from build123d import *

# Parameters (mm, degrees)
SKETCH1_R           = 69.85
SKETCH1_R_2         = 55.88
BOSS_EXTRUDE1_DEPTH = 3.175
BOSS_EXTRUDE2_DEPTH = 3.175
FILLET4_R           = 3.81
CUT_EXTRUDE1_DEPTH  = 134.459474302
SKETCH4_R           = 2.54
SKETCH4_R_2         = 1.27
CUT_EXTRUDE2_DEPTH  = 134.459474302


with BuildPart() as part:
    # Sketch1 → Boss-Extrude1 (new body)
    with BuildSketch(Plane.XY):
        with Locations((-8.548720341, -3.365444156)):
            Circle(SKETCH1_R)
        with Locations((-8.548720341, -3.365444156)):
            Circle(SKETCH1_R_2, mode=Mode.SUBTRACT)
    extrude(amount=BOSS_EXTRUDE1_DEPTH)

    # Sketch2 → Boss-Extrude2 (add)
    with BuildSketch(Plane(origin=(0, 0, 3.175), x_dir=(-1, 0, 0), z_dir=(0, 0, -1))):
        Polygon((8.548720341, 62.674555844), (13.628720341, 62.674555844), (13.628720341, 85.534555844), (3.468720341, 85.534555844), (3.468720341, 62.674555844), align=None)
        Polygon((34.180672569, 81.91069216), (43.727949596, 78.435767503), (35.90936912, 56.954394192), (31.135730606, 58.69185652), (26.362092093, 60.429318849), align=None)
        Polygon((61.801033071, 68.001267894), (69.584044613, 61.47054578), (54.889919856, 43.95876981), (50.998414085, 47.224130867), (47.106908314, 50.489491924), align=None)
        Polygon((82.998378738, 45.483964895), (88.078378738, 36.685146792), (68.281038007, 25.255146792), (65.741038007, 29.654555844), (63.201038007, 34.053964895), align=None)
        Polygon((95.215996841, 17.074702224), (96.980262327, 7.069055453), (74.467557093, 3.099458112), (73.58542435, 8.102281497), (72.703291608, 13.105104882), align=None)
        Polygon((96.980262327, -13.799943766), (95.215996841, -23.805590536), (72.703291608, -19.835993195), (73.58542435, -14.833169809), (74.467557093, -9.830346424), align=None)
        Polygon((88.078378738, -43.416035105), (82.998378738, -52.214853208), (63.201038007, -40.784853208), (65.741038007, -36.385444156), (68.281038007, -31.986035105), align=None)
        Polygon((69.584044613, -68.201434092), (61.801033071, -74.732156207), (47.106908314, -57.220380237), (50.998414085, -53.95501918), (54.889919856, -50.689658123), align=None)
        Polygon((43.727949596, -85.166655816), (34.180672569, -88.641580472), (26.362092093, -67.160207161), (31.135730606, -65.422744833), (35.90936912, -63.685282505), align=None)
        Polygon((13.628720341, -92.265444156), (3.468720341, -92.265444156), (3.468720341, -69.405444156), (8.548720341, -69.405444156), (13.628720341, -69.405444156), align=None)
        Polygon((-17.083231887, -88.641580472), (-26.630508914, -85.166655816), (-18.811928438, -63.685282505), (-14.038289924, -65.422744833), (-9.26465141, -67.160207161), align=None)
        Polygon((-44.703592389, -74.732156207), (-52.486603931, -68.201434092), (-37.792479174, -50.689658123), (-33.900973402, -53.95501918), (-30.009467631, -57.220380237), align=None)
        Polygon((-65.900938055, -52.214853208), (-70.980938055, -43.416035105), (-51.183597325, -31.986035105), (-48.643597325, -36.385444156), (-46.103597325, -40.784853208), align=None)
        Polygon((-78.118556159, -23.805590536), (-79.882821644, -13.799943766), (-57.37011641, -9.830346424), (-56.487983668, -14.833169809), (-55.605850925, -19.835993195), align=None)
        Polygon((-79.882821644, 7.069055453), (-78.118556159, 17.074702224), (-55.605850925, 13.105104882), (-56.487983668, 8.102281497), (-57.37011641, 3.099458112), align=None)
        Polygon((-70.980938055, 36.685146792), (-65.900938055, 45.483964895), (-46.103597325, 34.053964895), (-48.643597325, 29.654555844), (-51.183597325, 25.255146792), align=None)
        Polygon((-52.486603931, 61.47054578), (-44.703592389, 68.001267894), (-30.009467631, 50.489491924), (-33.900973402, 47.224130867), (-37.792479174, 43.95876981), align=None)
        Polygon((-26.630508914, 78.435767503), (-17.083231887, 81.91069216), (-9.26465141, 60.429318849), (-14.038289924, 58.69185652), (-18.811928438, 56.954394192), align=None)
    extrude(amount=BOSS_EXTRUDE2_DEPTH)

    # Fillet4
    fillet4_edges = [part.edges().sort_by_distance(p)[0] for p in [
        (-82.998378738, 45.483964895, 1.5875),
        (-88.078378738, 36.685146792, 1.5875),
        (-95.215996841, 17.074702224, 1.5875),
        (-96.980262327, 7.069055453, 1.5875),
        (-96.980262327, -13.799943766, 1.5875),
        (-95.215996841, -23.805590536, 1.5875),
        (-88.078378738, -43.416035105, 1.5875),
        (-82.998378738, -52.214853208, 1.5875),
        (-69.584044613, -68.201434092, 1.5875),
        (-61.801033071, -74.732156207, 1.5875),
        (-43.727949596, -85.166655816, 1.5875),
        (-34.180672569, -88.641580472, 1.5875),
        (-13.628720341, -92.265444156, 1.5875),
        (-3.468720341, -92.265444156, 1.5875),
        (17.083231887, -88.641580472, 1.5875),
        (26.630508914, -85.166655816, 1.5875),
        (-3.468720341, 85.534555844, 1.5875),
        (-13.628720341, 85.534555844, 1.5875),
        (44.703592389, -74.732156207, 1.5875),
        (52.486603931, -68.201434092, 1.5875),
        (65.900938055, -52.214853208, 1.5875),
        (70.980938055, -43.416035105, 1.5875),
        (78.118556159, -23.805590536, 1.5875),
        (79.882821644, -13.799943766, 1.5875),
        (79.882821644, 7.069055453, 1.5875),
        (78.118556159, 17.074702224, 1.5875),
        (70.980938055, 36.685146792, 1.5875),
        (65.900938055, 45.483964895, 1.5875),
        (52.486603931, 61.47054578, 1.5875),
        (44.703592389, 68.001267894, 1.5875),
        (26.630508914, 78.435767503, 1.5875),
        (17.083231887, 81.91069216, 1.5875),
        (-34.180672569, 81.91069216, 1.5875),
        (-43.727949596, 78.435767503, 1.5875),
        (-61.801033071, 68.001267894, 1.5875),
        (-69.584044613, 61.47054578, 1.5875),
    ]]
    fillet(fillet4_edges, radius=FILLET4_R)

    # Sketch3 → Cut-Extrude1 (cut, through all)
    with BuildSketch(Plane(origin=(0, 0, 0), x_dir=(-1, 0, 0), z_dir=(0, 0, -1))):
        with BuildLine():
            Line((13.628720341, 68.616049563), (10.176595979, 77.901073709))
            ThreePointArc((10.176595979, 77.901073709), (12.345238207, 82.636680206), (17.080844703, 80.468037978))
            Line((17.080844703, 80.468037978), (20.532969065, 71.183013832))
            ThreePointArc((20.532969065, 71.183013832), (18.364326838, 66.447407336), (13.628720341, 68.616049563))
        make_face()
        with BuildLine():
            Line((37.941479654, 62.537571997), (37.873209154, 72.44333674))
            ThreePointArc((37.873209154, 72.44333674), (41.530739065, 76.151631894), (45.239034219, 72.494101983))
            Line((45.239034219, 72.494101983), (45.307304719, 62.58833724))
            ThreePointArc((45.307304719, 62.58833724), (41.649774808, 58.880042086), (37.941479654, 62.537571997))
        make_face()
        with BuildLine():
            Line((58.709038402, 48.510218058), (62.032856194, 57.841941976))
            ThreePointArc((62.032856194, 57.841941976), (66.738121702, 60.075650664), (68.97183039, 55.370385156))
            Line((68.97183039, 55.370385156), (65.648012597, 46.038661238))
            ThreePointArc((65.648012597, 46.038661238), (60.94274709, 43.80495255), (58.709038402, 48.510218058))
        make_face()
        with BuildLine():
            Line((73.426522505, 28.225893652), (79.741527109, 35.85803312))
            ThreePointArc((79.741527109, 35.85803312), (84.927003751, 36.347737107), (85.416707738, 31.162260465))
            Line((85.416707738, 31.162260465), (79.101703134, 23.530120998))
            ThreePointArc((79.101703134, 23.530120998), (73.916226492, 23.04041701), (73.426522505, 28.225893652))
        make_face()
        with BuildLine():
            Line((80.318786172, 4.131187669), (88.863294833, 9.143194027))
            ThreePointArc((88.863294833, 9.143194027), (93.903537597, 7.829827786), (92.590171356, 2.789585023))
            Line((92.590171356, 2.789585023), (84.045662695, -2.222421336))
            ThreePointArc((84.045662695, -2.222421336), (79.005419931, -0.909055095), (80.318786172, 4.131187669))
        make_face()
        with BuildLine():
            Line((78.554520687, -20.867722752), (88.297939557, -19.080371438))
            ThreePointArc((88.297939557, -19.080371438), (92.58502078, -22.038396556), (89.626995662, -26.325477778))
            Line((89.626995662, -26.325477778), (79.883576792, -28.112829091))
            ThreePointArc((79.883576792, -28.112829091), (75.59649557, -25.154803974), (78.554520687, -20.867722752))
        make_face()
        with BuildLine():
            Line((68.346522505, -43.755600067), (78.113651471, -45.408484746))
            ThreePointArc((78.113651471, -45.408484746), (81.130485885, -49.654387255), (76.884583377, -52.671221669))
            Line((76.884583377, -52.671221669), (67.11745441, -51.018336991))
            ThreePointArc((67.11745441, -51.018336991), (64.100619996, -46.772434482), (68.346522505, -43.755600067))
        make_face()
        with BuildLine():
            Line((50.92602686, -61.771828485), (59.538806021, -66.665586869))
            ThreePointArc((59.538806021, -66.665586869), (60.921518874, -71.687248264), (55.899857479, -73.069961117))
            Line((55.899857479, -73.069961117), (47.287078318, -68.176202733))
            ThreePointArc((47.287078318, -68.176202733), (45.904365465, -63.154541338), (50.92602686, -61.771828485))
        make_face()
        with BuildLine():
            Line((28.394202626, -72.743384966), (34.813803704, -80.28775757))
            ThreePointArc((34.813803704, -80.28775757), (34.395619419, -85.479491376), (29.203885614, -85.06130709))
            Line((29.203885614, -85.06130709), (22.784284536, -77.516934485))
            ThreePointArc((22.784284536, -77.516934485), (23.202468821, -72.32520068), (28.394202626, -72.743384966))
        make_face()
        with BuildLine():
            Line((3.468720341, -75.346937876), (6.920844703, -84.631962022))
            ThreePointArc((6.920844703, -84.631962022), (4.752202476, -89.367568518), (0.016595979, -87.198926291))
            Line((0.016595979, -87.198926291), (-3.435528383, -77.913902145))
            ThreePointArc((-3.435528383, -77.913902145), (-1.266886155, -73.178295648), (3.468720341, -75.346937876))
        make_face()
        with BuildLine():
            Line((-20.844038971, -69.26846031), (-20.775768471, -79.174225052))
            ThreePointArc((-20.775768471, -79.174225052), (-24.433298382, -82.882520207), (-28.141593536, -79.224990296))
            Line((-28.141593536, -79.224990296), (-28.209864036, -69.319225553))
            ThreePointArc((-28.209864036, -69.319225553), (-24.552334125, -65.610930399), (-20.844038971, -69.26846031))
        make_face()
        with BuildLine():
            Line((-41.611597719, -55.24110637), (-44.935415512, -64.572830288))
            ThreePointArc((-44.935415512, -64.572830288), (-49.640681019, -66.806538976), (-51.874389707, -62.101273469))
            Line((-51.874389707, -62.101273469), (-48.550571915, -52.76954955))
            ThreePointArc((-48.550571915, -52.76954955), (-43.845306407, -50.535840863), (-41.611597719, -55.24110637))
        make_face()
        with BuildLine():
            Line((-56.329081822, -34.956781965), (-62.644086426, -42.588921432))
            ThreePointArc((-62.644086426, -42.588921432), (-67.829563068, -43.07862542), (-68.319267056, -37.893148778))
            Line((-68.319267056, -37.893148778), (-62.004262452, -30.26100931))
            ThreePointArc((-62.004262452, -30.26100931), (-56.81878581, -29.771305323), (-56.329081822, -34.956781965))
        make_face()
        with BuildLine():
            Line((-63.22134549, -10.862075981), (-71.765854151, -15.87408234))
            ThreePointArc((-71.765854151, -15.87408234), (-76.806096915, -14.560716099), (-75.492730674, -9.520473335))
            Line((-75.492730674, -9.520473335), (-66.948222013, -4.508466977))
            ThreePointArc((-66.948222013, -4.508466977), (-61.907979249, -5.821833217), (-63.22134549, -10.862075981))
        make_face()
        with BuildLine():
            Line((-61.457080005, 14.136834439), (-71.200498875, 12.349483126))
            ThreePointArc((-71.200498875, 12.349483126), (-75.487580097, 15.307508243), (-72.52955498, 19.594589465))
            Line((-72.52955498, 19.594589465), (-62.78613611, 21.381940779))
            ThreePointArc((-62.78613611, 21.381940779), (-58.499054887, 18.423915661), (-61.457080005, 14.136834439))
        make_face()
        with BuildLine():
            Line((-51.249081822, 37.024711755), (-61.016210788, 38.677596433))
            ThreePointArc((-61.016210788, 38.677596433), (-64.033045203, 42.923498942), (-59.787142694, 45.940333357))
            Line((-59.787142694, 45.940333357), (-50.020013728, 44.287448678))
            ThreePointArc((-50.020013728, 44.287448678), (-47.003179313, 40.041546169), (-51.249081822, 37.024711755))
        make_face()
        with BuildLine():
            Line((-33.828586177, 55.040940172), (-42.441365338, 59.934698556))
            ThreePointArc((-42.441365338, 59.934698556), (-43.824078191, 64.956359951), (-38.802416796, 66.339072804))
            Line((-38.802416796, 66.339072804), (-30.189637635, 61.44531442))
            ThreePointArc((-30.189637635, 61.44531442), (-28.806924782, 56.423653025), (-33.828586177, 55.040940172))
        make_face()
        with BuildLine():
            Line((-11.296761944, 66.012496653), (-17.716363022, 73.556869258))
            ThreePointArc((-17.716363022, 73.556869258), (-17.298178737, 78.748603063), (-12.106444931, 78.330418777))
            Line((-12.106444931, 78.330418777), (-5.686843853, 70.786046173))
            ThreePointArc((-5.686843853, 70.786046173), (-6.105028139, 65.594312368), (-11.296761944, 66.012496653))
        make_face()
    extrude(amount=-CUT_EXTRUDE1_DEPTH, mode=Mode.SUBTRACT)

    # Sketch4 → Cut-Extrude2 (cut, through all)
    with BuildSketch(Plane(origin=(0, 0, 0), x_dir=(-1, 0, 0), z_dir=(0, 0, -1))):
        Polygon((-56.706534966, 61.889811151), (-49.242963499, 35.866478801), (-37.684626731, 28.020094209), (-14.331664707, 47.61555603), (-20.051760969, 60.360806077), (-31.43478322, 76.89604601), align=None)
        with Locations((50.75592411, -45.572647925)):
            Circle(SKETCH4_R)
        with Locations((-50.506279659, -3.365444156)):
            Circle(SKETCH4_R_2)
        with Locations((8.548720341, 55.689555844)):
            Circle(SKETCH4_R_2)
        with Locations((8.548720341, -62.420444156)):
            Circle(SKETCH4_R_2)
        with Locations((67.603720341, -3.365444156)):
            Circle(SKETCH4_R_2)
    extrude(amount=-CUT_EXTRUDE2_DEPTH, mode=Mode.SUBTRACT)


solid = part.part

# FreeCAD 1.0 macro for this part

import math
import FreeCAD as App
import Part
import Sketcher
Q = App.Units.Quantity


def edges_at(feature, points):
    """Names of the edges that pass closest to the given points."""
    edges = feature.Shape.Edges
    near = lambda p: min(range(len(edges)), key=lambda i: edges[i].distToShape(Part.Vertex(*p))[0])
    return sorted({f"Edge{near(p) + 1}" for p in points})


def add_polygon(sketch, points):
    """Adds a closed chain of lines whose ends are joined by coincident constraints."""
    first, n = sketch.GeometryCount, len(points)
    for a, b in zip(points, points[1:] + points[:1]):
        sketch.addGeometry(Part.LineSegment(App.Vector(*a, 0), App.Vector(*b, 0)), False)
    for i in range(n):
        sketch.addConstraint(Sketcher.Constraint("Coincident", first + i, 2, first + (i + 1) % n, 1))

doc = App.newDocument("Part")
body = doc.addObject("PartDesign::Body", "Body")

# Sketch on XY plane
sketch1 = body.newObject("Sketcher::SketchObject", "Sketch")
sketch1.AttachmentSupport = (doc.getObject("XY_Plane"), [""])
sketch1.MapMode = "FlatFace"
sketch1.addGeometry([
    Part.Circle(App.Vector(-9, -3, 0), App.Vector(0, 0, 1), 70),
    Part.Circle(App.Vector(-9, -3, 0), App.Vector(0, 0, 1), 56),
], False)
sketch1.addConstraint([
    Sketcher.Constraint("Coincident", 1, 3, 0, 3),
    Sketcher.Constraint("Diameter", 0, Q("5.5 in")),
    Sketcher.Constraint("Diameter", 1, Q("4.4 in")),
    Sketcher.Constraint("DistanceX", 0, 3, -1, 1, 8.54872),
    Sketcher.Constraint("DistanceY", 0, 3, -1, 1, 3.365444),
])
pad1 = body.newObject("PartDesign::Pad", "Pad")
pad1.Profile = sketch1
pad1.Length = Q("0.125 in")

# Sketch on XY plane
sketch2 = body.newObject("Sketcher::SketchObject", "Sketch001")
sketch2.AttachmentSupport = (doc.getObject("XY_Plane"), [""])
sketch2.MapMode = "FlatFace"
sketch2.AttachmentOffset = App.Placement(App.Vector(0, 0, 0.125 * 25.4), App.Rotation())
add_polygon(sketch2, [(-14, 63), (-14, 86), (-3, 86), (-3, 63)])  # lines 0-3
add_polygon(sketch2, [(-44, 78), (-34, 82), (-26, 60), (-31, 59), (-36, 57)])  # lines 4-8
add_polygon(sketch2, [(-70, 61), (-62, 68), (-47, 50), (-55, 44)])  # lines 9-12
add_polygon(sketch2, [(-88, 37), (-83, 45), (-63, 34), (-66, 30), (-68, 25)])  # lines 13-17
add_polygon(sketch2, [(-97, 7), (-95, 17), (-73, 13), (-74, 8), (-74, 3)])  # lines 18-22
add_polygon(sketch2, [(-95, -24), (-97, -14), (-74, -10), (-74, -15), (-73, -20)])  # lines 23-27
add_polygon(sketch2, [(-83, -52), (-88, -43), (-68, -32), (-66, -36), (-63, -41)])  # lines 28-32
add_polygon(sketch2, [(-62, -75), (-70, -68), (-55, -51), (-47, -57)])  # lines 33-36
add_polygon(sketch2, [(-34, -89), (-44, -85), (-36, -64), (-31, -65), (-26, -67)])  # lines 37-41
add_polygon(sketch2, [(-3, -92), (-14, -92), (-14, -69), (-3, -69)])  # lines 42-45
add_polygon(sketch2, [(27, -85), (17, -89), (9, -67), (19, -64)])  # lines 46-49
add_polygon(sketch2, [(52, -68), (45, -75), (30, -57), (34, -54), (38, -51)])  # lines 50-54
add_polygon(sketch2, [(71, -43), (66, -52), (46, -41), (49, -36), (51, -32)])  # lines 55-59
add_polygon(sketch2, [(80, -14), (78, -24), (56, -20), (56, -15), (57, -10)])  # lines 60-64
add_polygon(sketch2, [(78, 17), (80, 7), (57, 3), (56, 8), (56, 13)])  # lines 65-69
add_polygon(sketch2, [(66, 45), (71, 37), (51, 25), (49, 30), (46, 34)])  # lines 70-74
add_polygon(sketch2, [(45, 68), (52, 61), (38, 44), (34, 47), (30, 50)])  # lines 75-79
add_polygon(sketch2, [(17, 82), (27, 78), (19, 57), (14, 59), (9, 60)])  # lines 80-84
sketch2.addConstraint([
    Sketcher.Constraint("Vertical", 0),
    Sketcher.Constraint("Horizontal", 1),
    Sketcher.Constraint("Vertical", 2),
    Sketcher.Constraint("Horizontal", 3),
    Sketcher.Constraint("Horizontal", 42),
    Sketcher.Constraint("Vertical", 43),
    Sketcher.Constraint("Horizontal", 44),
    Sketcher.Constraint("Vertical", 45),
    Sketcher.Constraint("Perpendicular", 4, 5),
    Sketcher.Constraint("Perpendicular", 5, 6),
    Sketcher.Constraint("Parallel", 6, 7),
    Sketcher.Constraint("Perpendicular", 7, 8),
    Sketcher.Constraint("Perpendicular", 9, 10),
    Sketcher.Constraint("Perpendicular", 10, 11),
    Sketcher.Constraint("Perpendicular", 11, 12),
    Sketcher.Constraint("Perpendicular", 13, 14),
    Sketcher.Constraint("Perpendicular", 14, 15),
    Sketcher.Constraint("Parallel", 15, 16),
    Sketcher.Constraint("Perpendicular", 16, 17),
    Sketcher.Constraint("Perpendicular", 18, 19),
    Sketcher.Constraint("Perpendicular", 19, 20),
    Sketcher.Constraint("Parallel", 20, 21),
    Sketcher.Constraint("Perpendicular", 21, 22),
    Sketcher.Constraint("Perpendicular", 23, 24),
    Sketcher.Constraint("Perpendicular", 24, 25),
    Sketcher.Constraint("Parallel", 25, 26),
    Sketcher.Constraint("Perpendicular", 26, 27),
    Sketcher.Constraint("Perpendicular", 28, 29),
    Sketcher.Constraint("Perpendicular", 29, 30),
    Sketcher.Constraint("Parallel", 30, 31),
    Sketcher.Constraint("Perpendicular", 31, 32),
    Sketcher.Constraint("Perpendicular", 33, 34),
    Sketcher.Constraint("Perpendicular", 34, 35),
    Sketcher.Constraint("Perpendicular", 35, 36),
    Sketcher.Constraint("Perpendicular", 37, 38),
    Sketcher.Constraint("Perpendicular", 38, 39),
    Sketcher.Constraint("Parallel", 39, 40),
    Sketcher.Constraint("Perpendicular", 40, 41),
    Sketcher.Constraint("Perpendicular", 8, 46),
    Sketcher.Constraint("Perpendicular", 46, 47),
    Sketcher.Constraint("Perpendicular", 47, 48),
    Sketcher.Constraint("Perpendicular", 48, 49),
    Sketcher.Constraint("Perpendicular", 12, 50),
    Sketcher.Constraint("Perpendicular", 50, 51),
    Sketcher.Constraint("Perpendicular", 51, 52),
    Sketcher.Constraint("Parallel", 52, 53),
    Sketcher.Constraint("Perpendicular", 53, 54),
    Sketcher.Constraint("Perpendicular", 17, 55),
    Sketcher.Constraint("Perpendicular", 55, 56),
    Sketcher.Constraint("Perpendicular", 56, 57),
    Sketcher.Constraint("Parallel", 57, 58),
    Sketcher.Constraint("Perpendicular", 58, 59),
    Sketcher.Constraint("Perpendicular", 22, 60),
    Sketcher.Constraint("Perpendicular", 60, 61),
    Sketcher.Constraint("Perpendicular", 61, 62),
    Sketcher.Constraint("Parallel", 62, 63),
    Sketcher.Constraint("Perpendicular", 63, 64),
    Sketcher.Constraint("Perpendicular", 27, 65),
    Sketcher.Constraint("Perpendicular", 65, 66),
    Sketcher.Constraint("Perpendicular", 66, 67),
    Sketcher.Constraint("Parallel", 67, 68),
    Sketcher.Constraint("Perpendicular", 68, 69),
    Sketcher.Constraint("Perpendicular", 32, 70),
    Sketcher.Constraint("Perpendicular", 70, 71),
    Sketcher.Constraint("Perpendicular", 71, 72),
    Sketcher.Constraint("Parallel", 72, 73),
    Sketcher.Constraint("Perpendicular", 73, 74),
    Sketcher.Constraint("Perpendicular", 36, 75),
    Sketcher.Constraint("Perpendicular", 75, 76),
    Sketcher.Constraint("Perpendicular", 76, 77),
    Sketcher.Constraint("Parallel", 77, 78),
    Sketcher.Constraint("Perpendicular", 78, 79),
    Sketcher.Constraint("Perpendicular", 41, 80),
    Sketcher.Constraint("Perpendicular", 80, 81),
    Sketcher.Constraint("Perpendicular", 81, 82),
    Sketcher.Constraint("Parallel", 82, 83),
    Sketcher.Constraint("Perpendicular", 83, 84),
    Sketcher.Constraint("Horizontal", 41, 2, 46, 2),
    Sketcher.Constraint("Horizontal", 40, 2, 47, 2),
    Sketcher.Constraint("Horizontal", 38, 2, 48, 2),
    Sketcher.Constraint("Horizontal", 36, 2, 50, 2),
    Sketcher.Constraint("Horizontal", 35, 2, 51, 2),
    Sketcher.Constraint("Horizontal", 34, 2, 53, 2),
    Sketcher.Constraint("Horizontal", 32, 2, 55, 2),
    Sketcher.Constraint("Horizontal", 31, 2, 56, 2),
    Sketcher.Constraint("Horizontal", 30, 2, 57, 2),
    Sketcher.Constraint("Horizontal", 29, 2, 58, 2),
    Sketcher.Constraint("Horizontal", 27, 2, 60, 2),
    Sketcher.Constraint("Horizontal", 26, 2, 61, 2),
    Sketcher.Constraint("Horizontal", 25, 2, 62, 2),
    Sketcher.Constraint("Horizontal", 24, 2, 63, 2),
    Sketcher.Constraint("Horizontal", 22, 2, 65, 2),
    Sketcher.Constraint("Horizontal", 21, 2, 66, 2),
    Sketcher.Constraint("Horizontal", 20, 2, 67, 2),
    Sketcher.Constraint("Horizontal", 19, 2, 68, 2),
    Sketcher.Constraint("Horizontal", 17, 2, 70, 2),
    Sketcher.Constraint("Horizontal", 16, 2, 71, 2),
    Sketcher.Constraint("Horizontal", 15, 2, 72, 2),
    Sketcher.Constraint("Horizontal", 14, 2, 73, 2),
    Sketcher.Constraint("Horizontal", 12, 2, 75, 2),
    Sketcher.Constraint("Horizontal", 11, 2, 76, 2),
    Sketcher.Constraint("Horizontal", 10, 2, 78, 2),
    Sketcher.Constraint("Horizontal", 8, 2, 80, 2),
    Sketcher.Constraint("Horizontal", 7, 2, 81, 2),
    Sketcher.Constraint("Horizontal", 6, 2, 82, 2),
    Sketcher.Constraint("Horizontal", 5, 2, 83, 2),
    Sketcher.Constraint("Vertical", 22, 2, 23, 2),
    Sketcher.Constraint("Vertical", 21, 2, 24, 2),
    Sketcher.Constraint("Vertical", 20, 2, 25, 2),
    Sketcher.Constraint("Vertical", 19, 2, 26, 2),
    Sketcher.Constraint("Vertical", 17, 2, 28, 2),
    Sketcher.Constraint("Vertical", 16, 2, 29, 2),
    Sketcher.Constraint("Vertical", 15, 2, 30, 2),
    Sketcher.Constraint("Vertical", 14, 2, 31, 2),
    Sketcher.Constraint("Vertical", 12, 2, 33, 2),
    Sketcher.Constraint("Vertical", 11, 2, 34, 2),
    Sketcher.Constraint("Vertical", 10, 2, 35, 2),
    Sketcher.Constraint("Vertical", 8, 2, 37, 2),
    Sketcher.Constraint("Vertical", 7, 2, 38, 2),
    Sketcher.Constraint("Vertical", 6, 2, 39, 2),
    Sketcher.Constraint("Vertical", 5, 2, 40, 2),
    Sketcher.Constraint("Vertical", 3, 2, 42, 2),
    Sketcher.Constraint("Vertical", 2, 2, 44, 2),
    Sketcher.Constraint("Vertical", 64, 2, 65, 2),
    Sketcher.Constraint("Vertical", 63, 2, 66, 2),
    Sketcher.Constraint("Vertical", 59, 2, 70, 2),
    Sketcher.Constraint("Vertical", 58, 2, 71, 2),
    Sketcher.Constraint("Vertical", 54, 2, 75, 2),
    Sketcher.Constraint("Vertical", 53, 2, 76, 2),
    Sketcher.Constraint("Vertical", 52, 2, 77, 2),
    Sketcher.Constraint("Vertical", 49, 2, 80, 2),
    Sketcher.Constraint("Vertical", 48, 2, 81, 2),
    Sketcher.Constraint("Equal", 2, 43),
    Sketcher.Constraint("Equal", 6, 7),
    Sketcher.Constraint("Equal", 4, 9),
    Sketcher.Constraint("Equal", 8, 10),
    Sketcher.Constraint("Equal", 11, 13),
    Sketcher.Constraint("Equal", 12, 14),
    Sketcher.Constraint("Equal", 7, 15),
    Sketcher.Constraint("Equal", 13, 18),
    Sketcher.Constraint("Equal", 17, 19),
    Sketcher.Constraint("Equal", 16, 20),
    Sketcher.Constraint("Equal", 40, 52),
    Sketcher.Constraint("DistanceX", 1, 1, 1, 2, Q("0.4 in")),
    Sketcher.Constraint("DistanceY", 0, 1, 0, 2, Q("0.9 in")),
    Sketcher.Constraint("Angle", 4, Q("20 deg")),
    Sketcher.Constraint("Angle", 9, Q("40 deg")),
    Sketcher.Constraint("Angle", 13, Q("60 deg")),
    Sketcher.Constraint("Angle", 18, Q("80 deg")),
    Sketcher.Constraint("Distance", 4, Q("0.4 in")),
    Sketcher.Constraint("Distance", 5, Q("0.9 in")),
    Sketcher.Constraint("DistanceX", 0, 2, -1, 1, 13.62872),
    Sketcher.Constraint("DistanceY", -1, 1, 5, 2, 60.429319),
    Sketcher.Constraint("DistanceX", 6, 2, -1, 1, 31.135731),
    Sketcher.Constraint("DistanceX", 10, 2, -1, 1, 47.106908),
    Sketcher.Constraint("DistanceY", -1, 1, 10, 2, 50.489492),
    Sketcher.Constraint("DistanceX", 13, 2, -1, 1, 82.998379),
    Sketcher.Constraint("DistanceX", 19, 2, -1, 1, 72.703292),
    Sketcher.Constraint("DistanceY", -1, 1, 20, 2, 8.102281),
    Sketcher.Constraint("DistanceY", 25, 2, -1, 1, 14.83317),
    Sketcher.Constraint("DistanceY", 34, 2, -1, 1, 50.689658),
    Sketcher.Constraint("DistanceY", 41, 2, -1, 1, 88.64158),
    Sketcher.Constraint("DistanceX", -1, 1, 46, 2, 17.083232),
    Sketcher.Constraint("DistanceX", -1, 1, 53, 2, 37.792479),
    Sketcher.Constraint("DistanceX", -1, 1, 55, 2, 65.900938),
    Sketcher.Constraint("DistanceX", -1, 1, 61, 2, 55.605851),
    Sketcher.Constraint("DistanceY", -1, 1, 0, 2, 85.534556),
    Sketcher.Constraint("DistanceY", -1, 1, 13, 2, 45.483965),
    Sketcher.Constraint("DistanceY", 28, 2, -1, 1, 43.416035),
    Sketcher.Constraint("DistanceY", 42, 2, -1, 1, 92.265444),
])
pad2 = body.newObject("PartDesign::Pad", "Pad001")
pad2.Profile = sketch2
pad2.Length = Q("0.125 in")
pad2.Reversed = True
doc.recompute()

fillet = body.newObject("PartDesign::Fillet", "Fillet")
fillet.Base = (pad2, edges_at(pad2, [
    (-82.998, 45.484, 1.587),
    (-88.078, 36.685, 1.587),
    (-95.216, 17.075, 1.587),
    (-96.98, 7.069, 1.587),
    (-96.98, -13.8, 1.587),
    (-95.216, -23.806, 1.587),
    (-88.078, -43.416, 1.587),
    (-82.998, -52.215, 1.587),
    (-69.584, -68.201, 1.587),
    (-61.801, -74.732, 1.587),
    (-43.728, -85.167, 1.587),
    (-34.181, -88.642, 1.587),
    (-13.629, -92.265, 1.587),
    (-3.469, -92.265, 1.587),
    (17.083, -88.642, 1.587),
    (26.631, -85.167, 1.587),
    (-3.469, 85.535, 1.587),
    (-13.629, 85.535, 1.587),
    (44.704, -74.732, 1.587),
    (52.487, -68.201, 1.587),
    (65.901, -52.215, 1.587),
    (70.981, -43.416, 1.587),
    (78.119, -23.806, 1.587),
    (79.883, -13.8, 1.587),
    (79.883, 7.069, 1.587),
    (78.119, 17.075, 1.587),
    (70.981, 36.685, 1.587),
    (65.901, 45.484, 1.587),
    (52.487, 61.471, 1.587),
    (44.704, 68.001, 1.587),
    (26.631, 78.436, 1.587),
    (17.083, 81.911, 1.587),
    (-34.181, 81.911, 1.587),
    (-43.728, 78.436, 1.587),
    (-61.801, 68.001, 1.587),
    (-69.584, 61.471, 1.587),
]))
fillet.Radius = Q("0.15 in")

# Sketch on XY plane
sketch3 = body.newObject("Sketcher::SketchObject", "Sketch002")
sketch3.AttachmentSupport = (doc.getObject("XY_Plane"), [""])
sketch3.MapMode = "FlatFace"
sketch3.addGeometry([
    Part.LineSegment(App.Vector(-10.2, 77.9, 0), App.Vector(-13.6, 68.6, 0)),  # 0
    Part.ArcOfCircle(Part.Circle(App.Vector(-17.1, 69.9, 0), App.Vector(0, 0, 1), 3.7), math.radians(160), math.radians(340)),  # 1
    Part.LineSegment(App.Vector(-20.5, 71.2, 0), App.Vector(-17.1, 80.5, 0)),  # 2
    Part.ArcOfCircle(Part.Circle(App.Vector(-13.6, 79.2, 0), App.Vector(0, 0, 1), 3.7), math.radians(-20), math.radians(160)),  # 3
    Part.LineSegment(App.Vector(-37.9, 72.4, 0), App.Vector(-37.9, 62.5, 0)),  # 4
    Part.ArcOfCircle(Part.Circle(App.Vector(-41.6, 62.6, 0), App.Vector(0, 0, 1), 3.7), math.radians(180), math.radians(360)),  # 5
    Part.LineSegment(App.Vector(-45.3, 62.6, 0), App.Vector(-45.2, 72.5, 0)),  # 6
    Part.ArcOfCircle(Part.Circle(App.Vector(-41.6, 72.5, 0), App.Vector(0, 0, 1), 3.7), math.radians(0), math.radians(180)),  # 7
    Part.LineSegment(App.Vector(-62, 57.8, 0), App.Vector(-58.7, 48.5, 0)),  # 8
    Part.ArcOfCircle(Part.Circle(App.Vector(-62.2, 47.3, 0), App.Vector(0, 0, 1), 3.7), math.radians(-160), math.radians(20)),  # 9
    Part.LineSegment(App.Vector(-65.6, 46, 0), App.Vector(-69, 55.4, 0)),  # 10
    Part.ArcOfCircle(Part.Circle(App.Vector(-65.5, 56.6, 0), App.Vector(0, 0, 1), 3.7), math.radians(20), math.radians(200)),  # 11
    Part.LineSegment(App.Vector(-79.7, 35.9, 0), App.Vector(-73.4, 28.2, 0)),  # 12
    Part.ArcOfCircle(Part.Circle(App.Vector(-76.3, 25.9, 0), App.Vector(0, 0, 1), 3.7), math.radians(-140), math.radians(40)),  # 13
    Part.LineSegment(App.Vector(-79.1, 23.5, 0), App.Vector(-85.4, 31.2, 0)),  # 14
    Part.ArcOfCircle(Part.Circle(App.Vector(-82.6, 33.5, 0), App.Vector(0, 0, 1), 3.7), math.radians(40), math.radians(220)),  # 15
    Part.LineSegment(App.Vector(-88.9, 9.1, 0), App.Vector(-80.3, 4.1, 0)),  # 16
    Part.ArcOfCircle(Part.Circle(App.Vector(-82.2, 1, 0), App.Vector(0, 0, 1), 3.7), math.radians(-120), math.radians(60)),  # 17
    Part.LineSegment(App.Vector(-84, -2.2, 0), App.Vector(-92.6, 2.8, 0)),  # 18
    Part.ArcOfCircle(Part.Circle(App.Vector(-90.7, 6, 0), App.Vector(0, 0, 1), 3.7), math.radians(60), math.radians(240)),  # 19
    Part.LineSegment(App.Vector(-88.3, -19.1, 0), App.Vector(-78.6, -20.9, 0)),  # 20
    Part.ArcOfCircle(Part.Circle(App.Vector(-79.2, -24.5, 0), App.Vector(0, 0, 1), 3.7), math.radians(-100), math.radians(80)),  # 21
    Part.LineSegment(App.Vector(-79.9, -28.1, 0), App.Vector(-89.6, -26.3, 0)),  # 22
    Part.ArcOfCircle(Part.Circle(App.Vector(-89, -22.7, 0), App.Vector(0, 0, 1), 3.7), math.radians(80), math.radians(260)),  # 23
    Part.LineSegment(App.Vector(-78.1, -45.4, 0), App.Vector(-68.3, -43.8, 0)),  # 24
    Part.ArcOfCircle(Part.Circle(App.Vector(-67.7, -47.4, 0), App.Vector(0, 0, 1), 3.7), math.radians(-80), math.radians(100)),  # 25
    Part.LineSegment(App.Vector(-67.1, -51, 0), App.Vector(-76.9, -52.7, 0)),  # 26
    Part.ArcOfCircle(Part.Circle(App.Vector(-77.5, -49, 0), App.Vector(0, 0, 1), 3.7), math.radians(100), math.radians(280)),  # 27
    Part.LineSegment(App.Vector(-59.5, -66.7, 0), App.Vector(-50.9, -61.8, 0)),  # 28
    Part.ArcOfCircle(Part.Circle(App.Vector(-49.1, -65, 0), App.Vector(0, 0, 1), 3.7), math.radians(-60), math.radians(120)),  # 29
    Part.LineSegment(App.Vector(-47.3, -68.2, 0), App.Vector(-55.9, -73.1, 0)),  # 30
    Part.ArcOfCircle(Part.Circle(App.Vector(-57.7, -69.9, 0), App.Vector(0, 0, 1), 3.7), math.radians(120), math.radians(300)),  # 31
    Part.LineSegment(App.Vector(-34.8, -80.3, 0), App.Vector(-28.4, -72.7, 0)),  # 32
    Part.ArcOfCircle(Part.Circle(App.Vector(-25.6, -75.1, 0), App.Vector(0, 0, 1), 3.7), math.radians(-40), math.radians(140)),  # 33
    Part.LineSegment(App.Vector(-22.8, -77.5, 0), App.Vector(-29.2, -85.1, 0)),  # 34
    Part.ArcOfCircle(Part.Circle(App.Vector(-32, -82.7, 0), App.Vector(0, 0, 1), 3.7), math.radians(140), math.radians(320)),  # 35
    Part.LineSegment(App.Vector(-6.9, -84.6, 0), App.Vector(-3.5, -75.3, 0)),  # 36
    Part.ArcOfCircle(Part.Circle(App.Vector(0, -76.6, 0), App.Vector(0, 0, 1), 3.7), math.radians(-20), math.radians(160)),  # 37
    Part.LineSegment(App.Vector(3.4, -77.9, 0), App.Vector(0, -87.2, 0)),  # 38
    Part.ArcOfCircle(Part.Circle(App.Vector(-3.5, -85.9, 0), App.Vector(0, 0, 1), 3.7), math.radians(160), math.radians(340)),  # 39
    Part.LineSegment(App.Vector(20.8, -79.2, 0), App.Vector(20.8, -69.3, 0)),  # 40
    Part.ArcOfCircle(Part.Circle(App.Vector(24.5, -69.3, 0), App.Vector(0, 0, 1), 3.7), math.radians(0), math.radians(180)),  # 41
    Part.LineSegment(App.Vector(28.2, -69.3, 0), App.Vector(28.1, -79.2, 0)),  # 42
    Part.ArcOfCircle(Part.Circle(App.Vector(24.5, -79.2, 0), App.Vector(0, 0, 1), 3.7), math.radians(180), math.radians(360)),  # 43
    Part.LineSegment(App.Vector(44.9, -64.6, 0), App.Vector(41.6, -55.2, 0)),  # 44
    Part.ArcOfCircle(Part.Circle(App.Vector(45.1, -54, 0), App.Vector(0, 0, 1), 3.7), math.radians(20), math.radians(200)),  # 45
    Part.LineSegment(App.Vector(48.6, -52.8, 0), App.Vector(51.9, -62.1, 0)),  # 46
    Part.ArcOfCircle(Part.Circle(App.Vector(48.4, -63.3, 0), App.Vector(0, 0, 1), 3.7), math.radians(-160), math.radians(20)),  # 47
    Part.LineSegment(App.Vector(62.6, -42.6, 0), App.Vector(56.3, -35, 0)),  # 48
    Part.ArcOfCircle(Part.Circle(App.Vector(59.2, -32.6, 0), App.Vector(0, 0, 1), 3.7), math.radians(40), math.radians(220)),  # 49
    Part.LineSegment(App.Vector(62, -30.3, 0), App.Vector(68.3, -37.9, 0)),  # 50
    Part.ArcOfCircle(Part.Circle(App.Vector(65.5, -40.2, 0), App.Vector(0, 0, 1), 3.7), math.radians(-140), math.radians(40)),  # 51
    Part.LineSegment(App.Vector(71.8, -15.9, 0), App.Vector(63.2, -10.9, 0)),  # 52
    Part.ArcOfCircle(Part.Circle(App.Vector(65.1, -7.7, 0), App.Vector(0, 0, 1), 3.7), math.radians(60), math.radians(240)),  # 53
    Part.LineSegment(App.Vector(66.9, -4.5, 0), App.Vector(75.5, -9.5, 0)),  # 54
    Part.ArcOfCircle(Part.Circle(App.Vector(73.6, -12.7, 0), App.Vector(0, 0, 1), 3.7), math.radians(-120), math.radians(60)),  # 55
    Part.LineSegment(App.Vector(71.2, 12.3, 0), App.Vector(61.5, 14.1, 0)),  # 56
    Part.ArcOfCircle(Part.Circle(App.Vector(62.1, 17.8, 0), App.Vector(0, 0, 1), 3.7), math.radians(80), math.radians(260)),  # 57
    Part.LineSegment(App.Vector(62.8, 21.4, 0), App.Vector(72.5, 19.6, 0)),  # 58
    Part.ArcOfCircle(Part.Circle(App.Vector(71.9, 16, 0), App.Vector(0, 0, 1), 3.7), math.radians(-100), math.radians(80)),  # 59
    Part.LineSegment(App.Vector(61, 38.7, 0), App.Vector(51.2, 37, 0)),  # 60
    Part.ArcOfCircle(Part.Circle(App.Vector(50.6, 40.7, 0), App.Vector(0, 0, 1), 3.7), math.radians(100), math.radians(280)),  # 61
    Part.LineSegment(App.Vector(50, 44.3, 0), App.Vector(59.8, 45.9, 0)),  # 62
    Part.ArcOfCircle(Part.Circle(App.Vector(60.4, 42.3, 0), App.Vector(0, 0, 1), 3.7), math.radians(-80), math.radians(100)),  # 63
    Part.LineSegment(App.Vector(42.4, 59.9, 0), App.Vector(33.8, 55, 0)),  # 64
    Part.ArcOfCircle(Part.Circle(App.Vector(32, 58.2, 0), App.Vector(0, 0, 1), 3.7), math.radians(120), math.radians(300)),  # 65
    Part.LineSegment(App.Vector(30.2, 61.4, 0), App.Vector(38.8, 66.3, 0)),  # 66
    Part.ArcOfCircle(Part.Circle(App.Vector(40.6, 63.1, 0), App.Vector(0, 0, 1), 3.7), math.radians(-60), math.radians(120)),  # 67
    Part.LineSegment(App.Vector(17.7, 73.6, 0), App.Vector(11.3, 66, 0)),  # 68
    Part.ArcOfCircle(Part.Circle(App.Vector(8.5, 68.4, 0), App.Vector(0, 0, 1), 3.7), math.radians(140), math.radians(320)),  # 69
    Part.LineSegment(App.Vector(5.7, 70.8, 0), App.Vector(12.1, 78.3, 0)),  # 70
    Part.ArcOfCircle(Part.Circle(App.Vector(14.9, 75.9, 0), App.Vector(0, 0, 1), 3.7), math.radians(-40), math.radians(140)),  # 71
], False)
sketch3.addConstraint([
    Sketcher.Constraint("Tangent", 0, 2, 1, 2),
    Sketcher.Constraint("Tangent", 1, 1, 2, 1),
    Sketcher.Constraint("Tangent", 2, 2, 3, 2),
    Sketcher.Constraint("Tangent", 3, 1, 0, 1),
    Sketcher.Constraint("Tangent", 4, 2, 5, 2),
    Sketcher.Constraint("Tangent", 5, 1, 6, 1),
    Sketcher.Constraint("Tangent", 6, 2, 7, 2),
    Sketcher.Constraint("Tangent", 7, 1, 4, 1),
    Sketcher.Constraint("Tangent", 8, 2, 9, 2),
    Sketcher.Constraint("Tangent", 9, 1, 10, 1),
    Sketcher.Constraint("Tangent", 10, 2, 11, 2),
    Sketcher.Constraint("Tangent", 11, 1, 8, 1),
    Sketcher.Constraint("Tangent", 12, 2, 13, 2),
    Sketcher.Constraint("Tangent", 13, 1, 14, 1),
    Sketcher.Constraint("Tangent", 14, 2, 15, 2),
    Sketcher.Constraint("Tangent", 15, 1, 12, 1),
    Sketcher.Constraint("Tangent", 16, 2, 17, 2),
    Sketcher.Constraint("Tangent", 17, 1, 18, 1),
    Sketcher.Constraint("Tangent", 18, 2, 19, 2),
    Sketcher.Constraint("Tangent", 19, 1, 16, 1),
    Sketcher.Constraint("Tangent", 20, 2, 21, 2),
    Sketcher.Constraint("Tangent", 21, 1, 22, 1),
    Sketcher.Constraint("Tangent", 22, 2, 23, 2),
    Sketcher.Constraint("Tangent", 23, 1, 20, 1),
    Sketcher.Constraint("Tangent", 24, 2, 25, 2),
    Sketcher.Constraint("Tangent", 25, 1, 26, 1),
    Sketcher.Constraint("Tangent", 26, 2, 27, 2),
    Sketcher.Constraint("Tangent", 27, 1, 24, 1),
    Sketcher.Constraint("Tangent", 28, 2, 29, 2),
    Sketcher.Constraint("Tangent", 29, 1, 30, 1),
    Sketcher.Constraint("Tangent", 30, 2, 31, 2),
    Sketcher.Constraint("Tangent", 31, 1, 28, 1),
    Sketcher.Constraint("Tangent", 32, 2, 33, 2),
    Sketcher.Constraint("Tangent", 33, 1, 34, 1),
    Sketcher.Constraint("Tangent", 34, 2, 35, 2),
    Sketcher.Constraint("Tangent", 35, 1, 32, 1),
    Sketcher.Constraint("Tangent", 36, 2, 37, 2),
    Sketcher.Constraint("Tangent", 37, 1, 38, 1),
    Sketcher.Constraint("Tangent", 38, 2, 39, 2),
    Sketcher.Constraint("Tangent", 39, 1, 36, 1),
    Sketcher.Constraint("Tangent", 40, 2, 41, 2),
    Sketcher.Constraint("Tangent", 41, 1, 42, 1),
    Sketcher.Constraint("Tangent", 42, 2, 43, 2),
    Sketcher.Constraint("Tangent", 43, 1, 40, 1),
    Sketcher.Constraint("Tangent", 44, 2, 45, 2),
    Sketcher.Constraint("Tangent", 45, 1, 46, 1),
    Sketcher.Constraint("Tangent", 46, 2, 47, 2),
    Sketcher.Constraint("Tangent", 47, 1, 44, 1),
    Sketcher.Constraint("Tangent", 48, 2, 49, 2),
    Sketcher.Constraint("Tangent", 49, 1, 50, 1),
    Sketcher.Constraint("Tangent", 50, 2, 51, 2),
    Sketcher.Constraint("Tangent", 51, 1, 48, 1),
    Sketcher.Constraint("Tangent", 52, 2, 53, 2),
    Sketcher.Constraint("Tangent", 53, 1, 54, 1),
    Sketcher.Constraint("Tangent", 54, 2, 55, 2),
    Sketcher.Constraint("Tangent", 55, 1, 52, 1),
    Sketcher.Constraint("Tangent", 56, 2, 57, 2),
    Sketcher.Constraint("Tangent", 57, 1, 58, 1),
    Sketcher.Constraint("Tangent", 58, 2, 59, 2),
    Sketcher.Constraint("Tangent", 59, 1, 56, 1),
    Sketcher.Constraint("Tangent", 60, 2, 61, 2),
    Sketcher.Constraint("Tangent", 61, 1, 62, 1),
    Sketcher.Constraint("Tangent", 62, 2, 63, 2),
    Sketcher.Constraint("Tangent", 63, 1, 60, 1),
    Sketcher.Constraint("Tangent", 64, 2, 65, 2),
    Sketcher.Constraint("Tangent", 65, 1, 66, 1),
    Sketcher.Constraint("Tangent", 66, 2, 67, 2),
    Sketcher.Constraint("Tangent", 67, 1, 64, 1),
    Sketcher.Constraint("Tangent", 68, 2, 69, 2),
    Sketcher.Constraint("Tangent", 69, 1, 70, 1),
    Sketcher.Constraint("Tangent", 70, 2, 71, 2),
    Sketcher.Constraint("Tangent", 71, 1, 68, 1),
    Sketcher.Constraint("Equal", 1, 3),
    Sketcher.Constraint("Equal", 3, 5),
    Sketcher.Constraint("Equal", 5, 7),
    Sketcher.Constraint("Equal", 7, 9),
    Sketcher.Constraint("Equal", 9, 11),
    Sketcher.Constraint("Equal", 11, 13),
    Sketcher.Constraint("Equal", 13, 15),
    Sketcher.Constraint("Equal", 15, 17),
    Sketcher.Constraint("Equal", 17, 19),
    Sketcher.Constraint("Equal", 19, 21),
    Sketcher.Constraint("Equal", 21, 23),
    Sketcher.Constraint("Equal", 23, 25),
    Sketcher.Constraint("Equal", 25, 27),
    Sketcher.Constraint("Equal", 27, 29),
    Sketcher.Constraint("Equal", 29, 31),
    Sketcher.Constraint("Equal", 31, 33),
    Sketcher.Constraint("Equal", 33, 35),
    Sketcher.Constraint("Equal", 35, 37),
    Sketcher.Constraint("Equal", 37, 39),
    Sketcher.Constraint("Equal", 39, 41),
    Sketcher.Constraint("Equal", 41, 43),
    Sketcher.Constraint("Equal", 43, 45),
    Sketcher.Constraint("Equal", 45, 47),
    Sketcher.Constraint("Equal", 47, 49),
    Sketcher.Constraint("Equal", 49, 51),
    Sketcher.Constraint("Equal", 51, 53),
    Sketcher.Constraint("Equal", 53, 55),
    Sketcher.Constraint("Equal", 55, 57),
    Sketcher.Constraint("Equal", 57, 59),
    Sketcher.Constraint("Equal", 59, 61),
    Sketcher.Constraint("Equal", 61, 63),
    Sketcher.Constraint("Equal", 63, 65),
    Sketcher.Constraint("Equal", 65, 67),
    Sketcher.Constraint("Equal", 67, 69),
    Sketcher.Constraint("Equal", 69, 71),
    Sketcher.Constraint("Parallel", 2, 36),
    Sketcher.Constraint("Parallel", 6, 40),
    Sketcher.Constraint("Parallel", 10, 44),
    Sketcher.Constraint("Parallel", 14, 48),
    Sketcher.Constraint("Parallel", 18, 52),
    Sketcher.Constraint("Parallel", 22, 56),
    Sketcher.Constraint("Parallel", 26, 60),
    Sketcher.Constraint("Parallel", 30, 64),
    Sketcher.Constraint("Parallel", 34, 68),
    Sketcher.Constraint("Vertical", 3, 3, 0, 2),
    Sketcher.Constraint("Vertical", 39, 3, 36, 2),
    Sketcher.Constraint("Equal", 2, 4),
    Sketcher.Constraint("Equal", 6, 8),
    Sketcher.Constraint("Equal", 10, 12),
    Sketcher.Constraint("Equal", 14, 16),
    Sketcher.Constraint("Equal", 18, 20),
    Sketcher.Constraint("Equal", 22, 24),
    Sketcher.Constraint("Equal", 26, 28),
    Sketcher.Constraint("Equal", 30, 32),
    Sketcher.Constraint("Equal", 38, 40),
    Sketcher.Constraint("Equal", 42, 44),
    Sketcher.Constraint("Equal", 46, 48),
    Sketcher.Constraint("Equal", 50, 52),
    Sketcher.Constraint("Equal", 54, 56),
    Sketcher.Constraint("Equal", 58, 60),
    Sketcher.Constraint("Equal", 62, 64),
    Sketcher.Constraint("Equal", 66, 68),
    Sketcher.Constraint("Radius", 1, Q("0.145 in")),
    Sketcher.Constraint("Distance", 0, Q("0.39 in")),
    Sketcher.Constraint("DistanceY", -1, 1, 7, 1, Q("2.8520999 in")),
    Sketcher.Constraint("DistanceY", -1, 1, 59, 1, Q("0.4862001 in")),
    Sketcher.Constraint("DistanceY", -1, 1, 6, 2, 72.494102),
    Sketcher.Constraint("DistanceY", 24, 2, -1, 1, 43.7556),
    Sketcher.Constraint("DistanceX", -1, 1, 59, 1, 71.200499),
    Sketcher.Constraint("DistanceY", -1, 1, 67, 1, 59.934699),
    Sketcher.Constraint("DistanceY", -1, 1, 1, 3, 69.899532),
    Sketcher.Constraint("DistanceX", 3, 3, -1, 1, 13.62872),
    Sketcher.Constraint("DistanceX", 7, 3, -1, 1, 41.556122),
    Sketcher.Constraint("DistanceY", -1, 1, 9, 3, 47.27444),
    Sketcher.Constraint("DistanceY", -1, 1, 19, 3, 5.96639),
    Sketcher.Constraint("DistanceX", 21, 3, -1, 1, 79.219049),
    Sketcher.Constraint("DistanceX", 25, 3, -1, 1, 67.731988),
    Sketcher.Constraint("DistanceY", 25, 3, -1, 1, 47.386969),
    Sketcher.Constraint("DistanceX", 31, 3, -1, 1, 57.719332),
    Sketcher.Constraint("DistanceY", 33, 3, -1, 1, 75.13016),
    Sketcher.Constraint("DistanceY", 37, 3, -1, 1, 76.63042),
    Sketcher.Constraint("DistanceX", 39, 3, -1, 1, 3.46872),
    Sketcher.Constraint("DistanceX", -1, 1, 41, 3, 24.526952),
    Sketcher.Constraint("DistanceY", 47, 3, -1, 1, 63.337052),
    Sketcher.Constraint("DistanceY", 53, 3, -1, 1, 7.685271),
    Sketcher.Constraint("DistanceX", -1, 1, 57, 3, 62.121608),
    Sketcher.Constraint("DistanceY", -1, 1, 61, 3, 40.65608),
    Sketcher.Constraint("DistanceX", -1, 1, 65, 3, 32.009112),
    Sketcher.Constraint("DistanceX", -1, 1, 67, 3, 40.621891),
    Sketcher.Constraint("DistanceY", -1, 1, 69, 3, 68.399271),
    Sketcher.Constraint("DistanceX", 8, 2, -1, 1, 58.709038),
    Sketcher.Constraint("DistanceY", -1, 1, 8, 2, 48.510218),
    Sketcher.Constraint("DistanceY", -1, 1, 13, 1, 23.530121),
    Sketcher.Constraint("DistanceY", -1, 1, 14, 2, 31.16226),
    Sketcher.Constraint("DistanceY", 17, 1, -1, 1, 2.222421),
    Sketcher.Constraint("DistanceX", 18, 2, -1, 1, 92.590171),
    Sketcher.Constraint("DistanceY", 21, 1, -1, 1, 28.112829),
    Sketcher.Constraint("DistanceY", 28, 2, -1, 1, 61.771828),
    Sketcher.Constraint("DistanceY", 40, 2, -1, 1, 69.26846),
    Sketcher.Constraint("DistanceX", -1, 1, 45, 1, 48.550572),
    Sketcher.Constraint("DistanceX", -1, 1, 48, 2, 56.329082),
    Sketcher.Constraint("DistanceY", 48, 2, -1, 1, 34.956782),
    Sketcher.Constraint("DistanceX", -1, 1, 54, 2, 75.492731),
    Sketcher.Constraint("DistanceX", -1, 1, 60, 2, 51.249082),
    Sketcher.Constraint("DistanceX", -1, 1, 68, 2, 11.296762),
    Sketcher.Constraint("DistanceY", -1, 1, 70, 2, 78.330419),
    Sketcher.Constraint("DistanceX", 13, 3, -1, 1, 76.264113),
    Sketcher.Constraint("DistanceX", 33, 3, -1, 1, 25.589244),
])
pocket1 = body.newObject("PartDesign::Pocket", "Pocket")
pocket1.Profile = sketch3
pocket1.Type = "ThroughAll"
pocket1.Reversed = True

# Sketch on XY plane
sketch4 = body.newObject("Sketcher::SketchObject", "Sketch003")
sketch4.AttachmentSupport = (doc.getObject("XY_Plane"), [""])
sketch4.MapMode = "FlatFace"
add_polygon(sketch4, [(56.7, 61.9), (49.2, 35.9), (37.7, 28), (14.3, 47.6), (20.1, 60.4), (31.4, 76.9)])  # lines 0-5
sketch4.addGeometry(Part.Circle(App.Vector(-50.8, -45.6, 0), App.Vector(0, 0, 1), 2.5), False)  # 6
sketch4.addGeometry(Part.Circle(App.Vector(50.5, -3.4, 0), App.Vector(0, 0, 1), 1.3), False)  # 7
sketch4.addGeometry(Part.Circle(App.Vector(-8.5, 55.7, 0), App.Vector(0, 0, 1), 1.3), False)  # 8
sketch4.addGeometry(Part.Circle(App.Vector(-8.5, -62.4, 0), App.Vector(0, 0, 1), 1.3), False)  # 9
sketch4.addGeometry(Part.Circle(App.Vector(-67.6, -3.4, 0), App.Vector(0, 0, 1), 1.3), False)  # 10
sketch4.addConstraint([
    Sketcher.Constraint("Equal", 7, 8),
    Sketcher.Constraint("Equal", 8, 9),
    Sketcher.Constraint("Equal", 9, 10),
    Sketcher.Constraint("Horizontal", 7, 3, 10, 3),
    Sketcher.Constraint("Vertical", 8, 3, 9, 3),
    Sketcher.Constraint("Equal", 1, 3),
    Sketcher.Constraint("Diameter", 6, Q("0.2 in")),
    Sketcher.Constraint("Diameter", 7, Q("0.1 in")),
    Sketcher.Constraint("Angle", 2, Q("140 deg")),
    Sketcher.Constraint("Distance", 1, Q("0.55 in")),
    Sketcher.Constraint("DistanceY", 9, 3, 8, 3, Q("4.65 in")),
    Sketcher.Constraint("DistanceX", 10, 3, 7, 3, Q("4.65 in")),
    Sketcher.Constraint("DistanceX", 8, 3, 7, 3, Q("2.325 in")),
    Sketcher.Constraint("DistanceY", 7, 3, 8, 3, Q("2.325 in")),
    Sketcher.Constraint("Distance", 5, 29.3913),
    Sketcher.Constraint("DistanceY", 2, 2, 8, 3, 8.074),
    Sketcher.Constraint("DistanceX", 2, 2, 0, 2, 34.911299),
    Sketcher.Constraint("Distance", 0, 27.072472),
    Sketcher.Constraint("DistanceX", -1, 1, 7, 3, 50.50628),
    Sketcher.Constraint("DistanceY", -1, 1, 0, 2, 35.866479),
    Sketcher.Constraint("DistanceX", -1, 1, 3, 2, 20.051761),
    Sketcher.Constraint("DistanceY", -1, 1, 5, 2, 61.889811),
    Sketcher.Constraint("DistanceY", 7, 3, 1, 2, 31.385538),
    Sketcher.Constraint("DistanceY", 2, 2, 3, 2, 12.74525),
    Sketcher.Constraint("DistanceY", 3, 2, 4, 2, 16.53524),
    Sketcher.Constraint("DistanceX", 6, 3, -1, 1, 50.755924),
    Sketcher.Constraint("DistanceY", 6, 3, -1, 1, 45.572648),
])
pocket2 = body.newObject("PartDesign::Pocket", "Pocket001")
pocket2.Profile = sketch4
pocket2.Type = "ThroughAll"
pocket2.Reversed = True

doc.recompute()
